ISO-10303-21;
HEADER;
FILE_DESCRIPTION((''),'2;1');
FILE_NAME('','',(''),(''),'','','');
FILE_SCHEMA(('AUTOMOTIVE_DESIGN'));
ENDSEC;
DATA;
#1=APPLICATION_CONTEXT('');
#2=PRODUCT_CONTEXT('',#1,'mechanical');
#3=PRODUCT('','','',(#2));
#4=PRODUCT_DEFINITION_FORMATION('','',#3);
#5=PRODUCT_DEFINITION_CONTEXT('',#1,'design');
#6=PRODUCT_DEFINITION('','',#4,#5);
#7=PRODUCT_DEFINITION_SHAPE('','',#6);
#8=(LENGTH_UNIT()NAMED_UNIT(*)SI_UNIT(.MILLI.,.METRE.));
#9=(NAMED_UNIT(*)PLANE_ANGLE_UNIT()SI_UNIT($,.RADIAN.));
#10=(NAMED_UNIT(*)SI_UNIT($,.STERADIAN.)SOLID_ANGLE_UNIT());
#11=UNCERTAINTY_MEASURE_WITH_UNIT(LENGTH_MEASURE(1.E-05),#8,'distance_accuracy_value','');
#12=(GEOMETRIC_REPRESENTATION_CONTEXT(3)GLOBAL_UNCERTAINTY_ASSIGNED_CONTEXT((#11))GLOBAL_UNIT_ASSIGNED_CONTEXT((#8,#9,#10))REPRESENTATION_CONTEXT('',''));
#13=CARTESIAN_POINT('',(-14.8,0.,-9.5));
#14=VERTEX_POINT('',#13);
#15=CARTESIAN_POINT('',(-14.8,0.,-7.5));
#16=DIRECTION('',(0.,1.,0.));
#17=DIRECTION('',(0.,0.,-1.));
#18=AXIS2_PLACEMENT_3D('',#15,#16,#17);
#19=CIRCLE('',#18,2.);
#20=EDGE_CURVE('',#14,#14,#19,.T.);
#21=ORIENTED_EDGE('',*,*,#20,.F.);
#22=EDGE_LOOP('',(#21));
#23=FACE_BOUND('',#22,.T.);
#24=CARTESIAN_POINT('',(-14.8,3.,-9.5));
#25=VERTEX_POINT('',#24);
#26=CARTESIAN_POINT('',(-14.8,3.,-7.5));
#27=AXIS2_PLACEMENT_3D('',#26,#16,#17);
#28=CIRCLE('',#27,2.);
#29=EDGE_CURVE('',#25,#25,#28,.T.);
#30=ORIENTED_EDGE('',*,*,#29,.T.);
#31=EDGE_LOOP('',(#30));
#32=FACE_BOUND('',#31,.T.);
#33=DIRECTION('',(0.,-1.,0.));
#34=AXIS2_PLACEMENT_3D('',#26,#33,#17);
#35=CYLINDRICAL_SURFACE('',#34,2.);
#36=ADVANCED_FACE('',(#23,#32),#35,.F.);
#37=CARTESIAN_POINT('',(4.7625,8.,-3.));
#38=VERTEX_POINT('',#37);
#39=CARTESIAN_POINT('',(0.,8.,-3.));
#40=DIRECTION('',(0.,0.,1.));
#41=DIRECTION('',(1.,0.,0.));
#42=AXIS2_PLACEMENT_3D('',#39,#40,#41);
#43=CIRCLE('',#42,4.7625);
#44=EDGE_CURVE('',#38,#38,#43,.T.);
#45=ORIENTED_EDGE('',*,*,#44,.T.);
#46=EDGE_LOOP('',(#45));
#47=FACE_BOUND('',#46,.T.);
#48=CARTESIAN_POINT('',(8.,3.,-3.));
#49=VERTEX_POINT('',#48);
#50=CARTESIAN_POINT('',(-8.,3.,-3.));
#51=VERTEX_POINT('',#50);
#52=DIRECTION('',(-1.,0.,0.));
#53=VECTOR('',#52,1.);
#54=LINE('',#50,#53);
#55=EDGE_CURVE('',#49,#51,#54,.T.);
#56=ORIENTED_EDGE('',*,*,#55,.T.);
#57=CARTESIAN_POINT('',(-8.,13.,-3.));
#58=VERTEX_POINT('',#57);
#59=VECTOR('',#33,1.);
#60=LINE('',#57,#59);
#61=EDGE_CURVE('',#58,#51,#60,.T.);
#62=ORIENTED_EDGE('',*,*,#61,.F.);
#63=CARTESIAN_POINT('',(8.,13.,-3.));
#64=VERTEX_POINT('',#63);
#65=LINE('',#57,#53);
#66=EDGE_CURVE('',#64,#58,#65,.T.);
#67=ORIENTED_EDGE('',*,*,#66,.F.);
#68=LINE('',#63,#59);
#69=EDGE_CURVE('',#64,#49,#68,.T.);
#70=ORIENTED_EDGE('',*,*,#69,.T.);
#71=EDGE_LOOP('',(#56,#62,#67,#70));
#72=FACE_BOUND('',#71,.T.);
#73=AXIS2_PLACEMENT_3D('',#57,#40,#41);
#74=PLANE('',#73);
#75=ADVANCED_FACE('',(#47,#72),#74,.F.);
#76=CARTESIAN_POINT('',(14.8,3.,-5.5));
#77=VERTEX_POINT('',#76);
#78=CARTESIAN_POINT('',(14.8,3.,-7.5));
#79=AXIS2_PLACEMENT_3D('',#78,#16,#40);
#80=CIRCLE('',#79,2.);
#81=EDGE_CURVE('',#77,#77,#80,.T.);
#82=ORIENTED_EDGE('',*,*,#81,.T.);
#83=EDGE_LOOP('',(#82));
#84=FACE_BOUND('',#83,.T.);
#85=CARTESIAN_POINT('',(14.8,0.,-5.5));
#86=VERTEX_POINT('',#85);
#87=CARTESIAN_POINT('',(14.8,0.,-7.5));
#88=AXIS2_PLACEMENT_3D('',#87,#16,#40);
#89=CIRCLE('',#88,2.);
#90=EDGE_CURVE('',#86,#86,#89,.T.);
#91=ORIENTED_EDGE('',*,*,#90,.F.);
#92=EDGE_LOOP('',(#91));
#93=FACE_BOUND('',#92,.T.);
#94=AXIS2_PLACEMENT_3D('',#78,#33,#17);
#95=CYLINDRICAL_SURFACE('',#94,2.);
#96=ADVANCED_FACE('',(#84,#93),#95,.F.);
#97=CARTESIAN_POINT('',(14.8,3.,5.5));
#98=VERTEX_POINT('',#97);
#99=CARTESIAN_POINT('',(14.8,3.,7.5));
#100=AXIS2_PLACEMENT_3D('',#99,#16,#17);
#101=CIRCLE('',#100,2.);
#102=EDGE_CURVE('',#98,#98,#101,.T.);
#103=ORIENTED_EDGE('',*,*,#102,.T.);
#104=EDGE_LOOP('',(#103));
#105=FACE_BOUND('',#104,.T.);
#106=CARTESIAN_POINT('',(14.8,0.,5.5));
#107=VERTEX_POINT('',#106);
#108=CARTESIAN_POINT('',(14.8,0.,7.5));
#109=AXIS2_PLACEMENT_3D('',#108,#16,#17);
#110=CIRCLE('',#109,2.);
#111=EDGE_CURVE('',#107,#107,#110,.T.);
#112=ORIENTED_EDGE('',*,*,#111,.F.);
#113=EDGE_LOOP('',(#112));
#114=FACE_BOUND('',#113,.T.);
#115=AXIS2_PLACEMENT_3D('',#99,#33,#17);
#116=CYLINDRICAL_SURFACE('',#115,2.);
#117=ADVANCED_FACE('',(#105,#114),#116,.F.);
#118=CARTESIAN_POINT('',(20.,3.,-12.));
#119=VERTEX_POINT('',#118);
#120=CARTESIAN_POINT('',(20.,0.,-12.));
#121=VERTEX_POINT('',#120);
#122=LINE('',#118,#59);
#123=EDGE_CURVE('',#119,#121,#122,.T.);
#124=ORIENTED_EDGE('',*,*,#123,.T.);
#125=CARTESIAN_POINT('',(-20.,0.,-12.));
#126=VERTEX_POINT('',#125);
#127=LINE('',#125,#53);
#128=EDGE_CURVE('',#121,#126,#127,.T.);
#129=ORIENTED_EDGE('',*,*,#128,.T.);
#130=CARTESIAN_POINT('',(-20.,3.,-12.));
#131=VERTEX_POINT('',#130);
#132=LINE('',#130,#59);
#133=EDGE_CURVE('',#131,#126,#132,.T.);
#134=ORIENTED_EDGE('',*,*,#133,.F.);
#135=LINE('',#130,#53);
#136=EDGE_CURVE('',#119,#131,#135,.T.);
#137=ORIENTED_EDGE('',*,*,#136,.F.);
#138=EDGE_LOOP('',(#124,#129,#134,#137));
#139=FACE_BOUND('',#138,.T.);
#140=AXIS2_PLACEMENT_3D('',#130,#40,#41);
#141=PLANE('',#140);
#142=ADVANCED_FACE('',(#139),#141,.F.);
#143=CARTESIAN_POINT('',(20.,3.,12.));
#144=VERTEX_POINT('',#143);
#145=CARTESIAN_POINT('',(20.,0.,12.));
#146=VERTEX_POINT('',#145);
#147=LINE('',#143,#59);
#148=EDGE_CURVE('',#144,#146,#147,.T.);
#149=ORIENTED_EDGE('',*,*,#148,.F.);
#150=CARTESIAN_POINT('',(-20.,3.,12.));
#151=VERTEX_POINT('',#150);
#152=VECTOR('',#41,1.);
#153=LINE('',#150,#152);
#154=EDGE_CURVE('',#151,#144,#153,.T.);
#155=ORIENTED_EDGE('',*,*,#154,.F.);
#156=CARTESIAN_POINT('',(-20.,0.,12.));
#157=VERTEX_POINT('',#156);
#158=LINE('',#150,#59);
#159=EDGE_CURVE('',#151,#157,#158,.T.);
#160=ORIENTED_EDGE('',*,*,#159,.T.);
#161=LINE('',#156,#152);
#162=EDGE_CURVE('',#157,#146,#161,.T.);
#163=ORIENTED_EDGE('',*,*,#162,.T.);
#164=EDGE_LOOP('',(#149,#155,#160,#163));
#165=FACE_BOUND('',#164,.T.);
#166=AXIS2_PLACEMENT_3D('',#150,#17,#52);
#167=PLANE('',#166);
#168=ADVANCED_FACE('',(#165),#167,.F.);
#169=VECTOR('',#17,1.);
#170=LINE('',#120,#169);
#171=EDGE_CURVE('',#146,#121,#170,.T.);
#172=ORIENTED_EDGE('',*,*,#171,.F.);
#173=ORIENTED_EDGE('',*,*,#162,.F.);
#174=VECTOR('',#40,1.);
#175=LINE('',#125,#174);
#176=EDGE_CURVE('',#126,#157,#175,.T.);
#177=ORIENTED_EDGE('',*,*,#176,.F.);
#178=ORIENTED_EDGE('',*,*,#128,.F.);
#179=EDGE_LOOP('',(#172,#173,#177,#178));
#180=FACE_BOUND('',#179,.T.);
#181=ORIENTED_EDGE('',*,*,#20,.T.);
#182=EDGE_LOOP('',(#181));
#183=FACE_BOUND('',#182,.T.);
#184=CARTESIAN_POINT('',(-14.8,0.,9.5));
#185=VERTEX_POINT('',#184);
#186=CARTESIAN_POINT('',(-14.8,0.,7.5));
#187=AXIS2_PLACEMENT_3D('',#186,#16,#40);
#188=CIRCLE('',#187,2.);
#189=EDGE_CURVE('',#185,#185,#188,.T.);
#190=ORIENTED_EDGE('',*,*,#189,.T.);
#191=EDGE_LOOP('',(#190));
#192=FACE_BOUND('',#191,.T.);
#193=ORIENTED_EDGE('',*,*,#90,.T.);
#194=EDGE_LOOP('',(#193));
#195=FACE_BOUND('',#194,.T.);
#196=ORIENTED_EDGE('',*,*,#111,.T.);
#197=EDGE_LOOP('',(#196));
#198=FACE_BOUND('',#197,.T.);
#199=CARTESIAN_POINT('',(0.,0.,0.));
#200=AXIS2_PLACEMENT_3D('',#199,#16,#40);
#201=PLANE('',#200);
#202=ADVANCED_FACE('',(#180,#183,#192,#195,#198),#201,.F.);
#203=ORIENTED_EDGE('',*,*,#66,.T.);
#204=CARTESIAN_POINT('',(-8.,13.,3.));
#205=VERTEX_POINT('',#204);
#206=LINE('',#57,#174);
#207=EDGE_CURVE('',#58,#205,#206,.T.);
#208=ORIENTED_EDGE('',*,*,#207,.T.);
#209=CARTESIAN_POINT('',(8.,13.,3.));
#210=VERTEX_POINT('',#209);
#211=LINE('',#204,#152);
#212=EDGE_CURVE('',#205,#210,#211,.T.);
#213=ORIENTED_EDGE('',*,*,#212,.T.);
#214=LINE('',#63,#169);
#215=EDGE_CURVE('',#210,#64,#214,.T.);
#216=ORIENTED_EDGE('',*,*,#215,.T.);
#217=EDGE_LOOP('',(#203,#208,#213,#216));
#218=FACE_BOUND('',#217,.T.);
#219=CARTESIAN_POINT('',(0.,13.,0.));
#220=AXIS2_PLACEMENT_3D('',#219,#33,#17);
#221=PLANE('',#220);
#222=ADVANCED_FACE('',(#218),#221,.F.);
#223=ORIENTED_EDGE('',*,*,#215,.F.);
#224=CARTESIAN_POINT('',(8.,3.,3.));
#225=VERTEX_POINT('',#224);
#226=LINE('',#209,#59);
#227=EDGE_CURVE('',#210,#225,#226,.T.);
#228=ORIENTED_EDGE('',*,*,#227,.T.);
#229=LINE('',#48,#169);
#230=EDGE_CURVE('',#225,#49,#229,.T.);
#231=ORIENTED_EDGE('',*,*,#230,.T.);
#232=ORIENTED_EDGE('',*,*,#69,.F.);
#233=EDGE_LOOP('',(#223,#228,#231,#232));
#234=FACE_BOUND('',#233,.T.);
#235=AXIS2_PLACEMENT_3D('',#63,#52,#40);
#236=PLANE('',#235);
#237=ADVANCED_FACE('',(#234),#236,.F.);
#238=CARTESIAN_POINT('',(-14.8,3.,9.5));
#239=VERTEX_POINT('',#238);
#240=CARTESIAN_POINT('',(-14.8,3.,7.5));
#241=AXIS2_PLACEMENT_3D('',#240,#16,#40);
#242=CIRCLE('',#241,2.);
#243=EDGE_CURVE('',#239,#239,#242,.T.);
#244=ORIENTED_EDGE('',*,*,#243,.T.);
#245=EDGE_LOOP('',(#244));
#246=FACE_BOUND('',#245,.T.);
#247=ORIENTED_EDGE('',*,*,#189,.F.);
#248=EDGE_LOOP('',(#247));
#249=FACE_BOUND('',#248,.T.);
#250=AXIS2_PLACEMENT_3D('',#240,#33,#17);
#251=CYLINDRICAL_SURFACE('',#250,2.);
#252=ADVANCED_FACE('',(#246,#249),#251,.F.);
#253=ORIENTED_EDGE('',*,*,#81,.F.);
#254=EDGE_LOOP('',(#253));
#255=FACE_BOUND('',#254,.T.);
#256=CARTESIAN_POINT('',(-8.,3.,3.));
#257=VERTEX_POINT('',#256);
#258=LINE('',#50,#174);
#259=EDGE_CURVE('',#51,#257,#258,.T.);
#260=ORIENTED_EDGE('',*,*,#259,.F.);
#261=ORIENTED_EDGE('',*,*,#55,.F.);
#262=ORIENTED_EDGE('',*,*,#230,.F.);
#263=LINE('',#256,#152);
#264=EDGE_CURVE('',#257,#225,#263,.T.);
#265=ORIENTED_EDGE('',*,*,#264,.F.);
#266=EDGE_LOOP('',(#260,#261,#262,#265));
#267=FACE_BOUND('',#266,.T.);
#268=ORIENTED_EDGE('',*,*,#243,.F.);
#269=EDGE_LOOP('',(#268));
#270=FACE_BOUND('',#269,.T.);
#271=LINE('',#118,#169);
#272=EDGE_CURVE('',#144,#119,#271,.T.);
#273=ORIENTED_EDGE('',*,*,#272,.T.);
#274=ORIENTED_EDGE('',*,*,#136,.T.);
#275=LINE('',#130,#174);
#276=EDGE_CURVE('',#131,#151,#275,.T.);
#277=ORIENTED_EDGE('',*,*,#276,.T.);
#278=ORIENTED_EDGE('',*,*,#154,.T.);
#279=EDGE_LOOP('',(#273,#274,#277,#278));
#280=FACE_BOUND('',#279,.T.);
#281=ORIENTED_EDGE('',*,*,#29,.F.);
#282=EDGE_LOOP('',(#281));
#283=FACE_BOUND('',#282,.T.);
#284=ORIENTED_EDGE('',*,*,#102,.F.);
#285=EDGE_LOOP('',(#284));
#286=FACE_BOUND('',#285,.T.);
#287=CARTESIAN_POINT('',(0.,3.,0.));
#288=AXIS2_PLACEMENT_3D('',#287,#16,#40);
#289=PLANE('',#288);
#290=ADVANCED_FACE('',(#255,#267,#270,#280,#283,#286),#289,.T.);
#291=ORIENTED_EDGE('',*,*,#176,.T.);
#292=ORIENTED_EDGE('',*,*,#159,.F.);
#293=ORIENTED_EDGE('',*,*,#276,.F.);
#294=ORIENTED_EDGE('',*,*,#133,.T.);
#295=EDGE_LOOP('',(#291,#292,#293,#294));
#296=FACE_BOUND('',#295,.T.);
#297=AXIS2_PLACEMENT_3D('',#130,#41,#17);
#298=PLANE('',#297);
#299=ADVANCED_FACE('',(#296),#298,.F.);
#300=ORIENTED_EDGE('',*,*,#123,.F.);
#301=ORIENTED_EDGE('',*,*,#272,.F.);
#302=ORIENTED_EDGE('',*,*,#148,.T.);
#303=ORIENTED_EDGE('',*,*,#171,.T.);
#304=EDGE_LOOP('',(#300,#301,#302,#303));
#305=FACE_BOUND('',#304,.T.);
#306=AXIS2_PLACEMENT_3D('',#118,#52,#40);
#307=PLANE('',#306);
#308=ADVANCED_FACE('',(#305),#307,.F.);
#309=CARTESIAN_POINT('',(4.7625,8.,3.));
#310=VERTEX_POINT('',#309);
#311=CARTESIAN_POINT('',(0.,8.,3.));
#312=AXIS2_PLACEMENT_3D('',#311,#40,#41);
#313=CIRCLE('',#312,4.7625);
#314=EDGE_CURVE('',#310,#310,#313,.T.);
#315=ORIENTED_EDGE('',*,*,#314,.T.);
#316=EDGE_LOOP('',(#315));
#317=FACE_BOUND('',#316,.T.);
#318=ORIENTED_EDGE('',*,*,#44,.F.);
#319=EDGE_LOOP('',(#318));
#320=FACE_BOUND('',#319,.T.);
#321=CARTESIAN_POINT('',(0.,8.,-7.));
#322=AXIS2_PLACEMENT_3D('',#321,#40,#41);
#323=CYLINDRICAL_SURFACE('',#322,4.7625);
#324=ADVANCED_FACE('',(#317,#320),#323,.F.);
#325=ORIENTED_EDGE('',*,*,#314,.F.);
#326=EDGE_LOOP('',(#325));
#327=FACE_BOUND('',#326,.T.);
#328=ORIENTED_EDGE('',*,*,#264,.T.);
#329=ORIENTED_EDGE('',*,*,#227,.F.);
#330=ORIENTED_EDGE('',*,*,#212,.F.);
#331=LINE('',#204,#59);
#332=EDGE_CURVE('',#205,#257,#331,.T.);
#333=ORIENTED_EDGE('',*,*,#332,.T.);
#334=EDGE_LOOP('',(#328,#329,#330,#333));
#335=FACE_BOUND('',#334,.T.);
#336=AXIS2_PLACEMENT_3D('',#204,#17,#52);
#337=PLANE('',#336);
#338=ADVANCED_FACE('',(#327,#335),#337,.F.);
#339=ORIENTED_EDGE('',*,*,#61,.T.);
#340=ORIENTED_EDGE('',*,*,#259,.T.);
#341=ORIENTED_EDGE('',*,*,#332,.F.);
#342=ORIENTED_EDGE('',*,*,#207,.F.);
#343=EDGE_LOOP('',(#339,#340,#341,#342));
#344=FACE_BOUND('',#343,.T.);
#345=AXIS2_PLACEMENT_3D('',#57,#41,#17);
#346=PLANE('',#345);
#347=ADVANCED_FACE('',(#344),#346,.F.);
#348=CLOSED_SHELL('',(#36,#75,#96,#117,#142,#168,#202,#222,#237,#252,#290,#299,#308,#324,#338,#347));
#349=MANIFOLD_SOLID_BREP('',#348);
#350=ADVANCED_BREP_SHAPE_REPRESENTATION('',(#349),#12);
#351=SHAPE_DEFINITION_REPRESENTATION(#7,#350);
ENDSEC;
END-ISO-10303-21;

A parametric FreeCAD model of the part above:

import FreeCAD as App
import Part
import Sketcher

doc = App.newDocument("Part")
body = doc.addObject("PartDesign::Body", "Body")

# Sketch on XZ plane
sketch1 = body.newObject("Sketcher::SketchObject", "Sketch")
sketch1.AttachmentSupport = (doc.getObject("XZ_Plane"), [""])
sketch1.MapMode = "FlatFace"
sketch1.addGeometry([
    Part.LineSegment(App.Vector(-20, -12, 0), App.Vector(-20, 12, 0)),  # 0
    Part.LineSegment(App.Vector(-20, 12, 0), App.Vector(20, 12, 0)),  # 1
    Part.LineSegment(App.Vector(20, 12, 0), App.Vector(20, -12, 0)),  # 2
    Part.LineSegment(App.Vector(20, -12, 0), App.Vector(-20, -12, 0)),  # 3
    Part.Circle(App.Vector(-14.8, 7.5, 0), App.Vector(0, 0, 1), 2),  # 4
    Part.Circle(App.Vector(14.8, 7.5, 0), App.Vector(0, 0, 1), 2),  # 5
    Part.Circle(App.Vector(-14.8, -7.5, 0), App.Vector(0, 0, 1), 2),  # 6
    Part.Circle(App.Vector(14.8, -7.5, 0), App.Vector(0, 0, 1), 2),  # 7
], False)
sketch1.addConstraint([
    Sketcher.Constraint("Coincident", 0, 2, 1, 1),
    Sketcher.Constraint("Coincident", 1, 2, 2, 1),
    Sketcher.Constraint("Coincident", 2, 2, 3, 1),
    Sketcher.Constraint("Coincident", 3, 2, 0, 1),
    Sketcher.Constraint("Vertical", 0),
    Sketcher.Constraint("Horizontal", 1),
    Sketcher.Constraint("Vertical", 2),
    Sketcher.Constraint("Horizontal", 3),
    Sketcher.Constraint("Equal", 4, 5),
    Sketcher.Constraint("Equal", 5, 6),
    Sketcher.Constraint("Equal", 6, 7),
    Sketcher.Constraint("Symmetric", 5, 3, 6, 3, -1, 1),
    Sketcher.Constraint("Symmetric", 4, 3, 7, 3, -1, 1),
    Sketcher.Constraint("Symmetric", 0, 2, 2, 2, -1, 1),
    Sketcher.Constraint("Symmetric", 4, 3, 5, 3, -2),
    Sketcher.Constraint("Diameter", 4, 4.0),
    Sketcher.Constraint("DistanceX", 1, 1, 1, 2, 40.0),
    Sketcher.Constraint("DistanceY", 0, 1, 0, 2, 24.0),
    Sketcher.Constraint("DistanceY", 6, 3, 4, 3, 15.0),
    Sketcher.Constraint("DistanceX", 4, 3, -1, 1, 14.8),
])
pad1 = body.newObject("PartDesign::Pad", "Pad")
pad1.Profile = sketch1
pad1.Length = 3
pad1.Reversed = True

# Sketch on XZ plane
sketch2 = body.newObject("Sketcher::SketchObject", "Sketch001")
sketch2.AttachmentSupport = (doc.getObject("XZ_Plane"), [""])
sketch2.MapMode = "FlatFace"
sketch2.AttachmentOffset = App.Placement(App.Vector(0, 0, -3), App.Rotation())
sketch2.addGeometry([
    Part.LineSegment(App.Vector(-8, -3, 0), App.Vector(-8, 3, 0)),
    Part.LineSegment(App.Vector(-8, 3, 0), App.Vector(8, 3, 0)),
    Part.LineSegment(App.Vector(8, 3, 0), App.Vector(8, -3, 0)),
    Part.LineSegment(App.Vector(8, -3, 0), App.Vector(-8, -3, 0)),
], False)
sketch2.addConstraint([
    Sketcher.Constraint("Coincident", 0, 2, 1, 1),
    Sketcher.Constraint("Coincident", 1, 2, 2, 1),
    Sketcher.Constraint("Coincident", 2, 2, 3, 1),
    Sketcher.Constraint("Coincident", 3, 2, 0, 1),
    Sketcher.Constraint("Vertical", 0),
    Sketcher.Constraint("Horizontal", 1),
    Sketcher.Constraint("Vertical", 2),
    Sketcher.Constraint("Horizontal", 3),
    Sketcher.Constraint("Symmetric", 0, 2, 2, 2, -1, 1),
    Sketcher.Constraint("DistanceX", 1, 1, 1, 2, 16.0),
    Sketcher.Constraint("DistanceY", 0, 1, 0, 2, 6.0),
])
pad2 = body.newObject("PartDesign::Pad", "Pad001")
pad2.Profile = sketch2
pad2.Length = 10
pad2.Reversed = True

# Sketch on XY plane
sketch3 = body.newObject("Sketcher::SketchObject", "Sketch002")
sketch3.AttachmentSupport = (doc.getObject("XY_Plane"), [""])
sketch3.MapMode = "FlatFace"
sketch3.AttachmentOffset = App.Placement(App.Vector(0, 0, 3), App.Rotation())
sketch3.addGeometry(Part.Circle(App.Vector(0, 8, 0), App.Vector(0, 0, 1), 4.8), False)
sketch3.addConstraint([
    Sketcher.Constraint("PointOnObject", 0, 3, -2),
    Sketcher.Constraint("Diameter", 0, 9.525),
    Sketcher.Constraint("DistanceY", -1, 1, 0, 3, 8.0),
])
pocket1 = body.newObject("PartDesign::Pocket", "Pocket")
pocket1.Profile = sketch3
pocket1.Length = 10

doc.recompute()
